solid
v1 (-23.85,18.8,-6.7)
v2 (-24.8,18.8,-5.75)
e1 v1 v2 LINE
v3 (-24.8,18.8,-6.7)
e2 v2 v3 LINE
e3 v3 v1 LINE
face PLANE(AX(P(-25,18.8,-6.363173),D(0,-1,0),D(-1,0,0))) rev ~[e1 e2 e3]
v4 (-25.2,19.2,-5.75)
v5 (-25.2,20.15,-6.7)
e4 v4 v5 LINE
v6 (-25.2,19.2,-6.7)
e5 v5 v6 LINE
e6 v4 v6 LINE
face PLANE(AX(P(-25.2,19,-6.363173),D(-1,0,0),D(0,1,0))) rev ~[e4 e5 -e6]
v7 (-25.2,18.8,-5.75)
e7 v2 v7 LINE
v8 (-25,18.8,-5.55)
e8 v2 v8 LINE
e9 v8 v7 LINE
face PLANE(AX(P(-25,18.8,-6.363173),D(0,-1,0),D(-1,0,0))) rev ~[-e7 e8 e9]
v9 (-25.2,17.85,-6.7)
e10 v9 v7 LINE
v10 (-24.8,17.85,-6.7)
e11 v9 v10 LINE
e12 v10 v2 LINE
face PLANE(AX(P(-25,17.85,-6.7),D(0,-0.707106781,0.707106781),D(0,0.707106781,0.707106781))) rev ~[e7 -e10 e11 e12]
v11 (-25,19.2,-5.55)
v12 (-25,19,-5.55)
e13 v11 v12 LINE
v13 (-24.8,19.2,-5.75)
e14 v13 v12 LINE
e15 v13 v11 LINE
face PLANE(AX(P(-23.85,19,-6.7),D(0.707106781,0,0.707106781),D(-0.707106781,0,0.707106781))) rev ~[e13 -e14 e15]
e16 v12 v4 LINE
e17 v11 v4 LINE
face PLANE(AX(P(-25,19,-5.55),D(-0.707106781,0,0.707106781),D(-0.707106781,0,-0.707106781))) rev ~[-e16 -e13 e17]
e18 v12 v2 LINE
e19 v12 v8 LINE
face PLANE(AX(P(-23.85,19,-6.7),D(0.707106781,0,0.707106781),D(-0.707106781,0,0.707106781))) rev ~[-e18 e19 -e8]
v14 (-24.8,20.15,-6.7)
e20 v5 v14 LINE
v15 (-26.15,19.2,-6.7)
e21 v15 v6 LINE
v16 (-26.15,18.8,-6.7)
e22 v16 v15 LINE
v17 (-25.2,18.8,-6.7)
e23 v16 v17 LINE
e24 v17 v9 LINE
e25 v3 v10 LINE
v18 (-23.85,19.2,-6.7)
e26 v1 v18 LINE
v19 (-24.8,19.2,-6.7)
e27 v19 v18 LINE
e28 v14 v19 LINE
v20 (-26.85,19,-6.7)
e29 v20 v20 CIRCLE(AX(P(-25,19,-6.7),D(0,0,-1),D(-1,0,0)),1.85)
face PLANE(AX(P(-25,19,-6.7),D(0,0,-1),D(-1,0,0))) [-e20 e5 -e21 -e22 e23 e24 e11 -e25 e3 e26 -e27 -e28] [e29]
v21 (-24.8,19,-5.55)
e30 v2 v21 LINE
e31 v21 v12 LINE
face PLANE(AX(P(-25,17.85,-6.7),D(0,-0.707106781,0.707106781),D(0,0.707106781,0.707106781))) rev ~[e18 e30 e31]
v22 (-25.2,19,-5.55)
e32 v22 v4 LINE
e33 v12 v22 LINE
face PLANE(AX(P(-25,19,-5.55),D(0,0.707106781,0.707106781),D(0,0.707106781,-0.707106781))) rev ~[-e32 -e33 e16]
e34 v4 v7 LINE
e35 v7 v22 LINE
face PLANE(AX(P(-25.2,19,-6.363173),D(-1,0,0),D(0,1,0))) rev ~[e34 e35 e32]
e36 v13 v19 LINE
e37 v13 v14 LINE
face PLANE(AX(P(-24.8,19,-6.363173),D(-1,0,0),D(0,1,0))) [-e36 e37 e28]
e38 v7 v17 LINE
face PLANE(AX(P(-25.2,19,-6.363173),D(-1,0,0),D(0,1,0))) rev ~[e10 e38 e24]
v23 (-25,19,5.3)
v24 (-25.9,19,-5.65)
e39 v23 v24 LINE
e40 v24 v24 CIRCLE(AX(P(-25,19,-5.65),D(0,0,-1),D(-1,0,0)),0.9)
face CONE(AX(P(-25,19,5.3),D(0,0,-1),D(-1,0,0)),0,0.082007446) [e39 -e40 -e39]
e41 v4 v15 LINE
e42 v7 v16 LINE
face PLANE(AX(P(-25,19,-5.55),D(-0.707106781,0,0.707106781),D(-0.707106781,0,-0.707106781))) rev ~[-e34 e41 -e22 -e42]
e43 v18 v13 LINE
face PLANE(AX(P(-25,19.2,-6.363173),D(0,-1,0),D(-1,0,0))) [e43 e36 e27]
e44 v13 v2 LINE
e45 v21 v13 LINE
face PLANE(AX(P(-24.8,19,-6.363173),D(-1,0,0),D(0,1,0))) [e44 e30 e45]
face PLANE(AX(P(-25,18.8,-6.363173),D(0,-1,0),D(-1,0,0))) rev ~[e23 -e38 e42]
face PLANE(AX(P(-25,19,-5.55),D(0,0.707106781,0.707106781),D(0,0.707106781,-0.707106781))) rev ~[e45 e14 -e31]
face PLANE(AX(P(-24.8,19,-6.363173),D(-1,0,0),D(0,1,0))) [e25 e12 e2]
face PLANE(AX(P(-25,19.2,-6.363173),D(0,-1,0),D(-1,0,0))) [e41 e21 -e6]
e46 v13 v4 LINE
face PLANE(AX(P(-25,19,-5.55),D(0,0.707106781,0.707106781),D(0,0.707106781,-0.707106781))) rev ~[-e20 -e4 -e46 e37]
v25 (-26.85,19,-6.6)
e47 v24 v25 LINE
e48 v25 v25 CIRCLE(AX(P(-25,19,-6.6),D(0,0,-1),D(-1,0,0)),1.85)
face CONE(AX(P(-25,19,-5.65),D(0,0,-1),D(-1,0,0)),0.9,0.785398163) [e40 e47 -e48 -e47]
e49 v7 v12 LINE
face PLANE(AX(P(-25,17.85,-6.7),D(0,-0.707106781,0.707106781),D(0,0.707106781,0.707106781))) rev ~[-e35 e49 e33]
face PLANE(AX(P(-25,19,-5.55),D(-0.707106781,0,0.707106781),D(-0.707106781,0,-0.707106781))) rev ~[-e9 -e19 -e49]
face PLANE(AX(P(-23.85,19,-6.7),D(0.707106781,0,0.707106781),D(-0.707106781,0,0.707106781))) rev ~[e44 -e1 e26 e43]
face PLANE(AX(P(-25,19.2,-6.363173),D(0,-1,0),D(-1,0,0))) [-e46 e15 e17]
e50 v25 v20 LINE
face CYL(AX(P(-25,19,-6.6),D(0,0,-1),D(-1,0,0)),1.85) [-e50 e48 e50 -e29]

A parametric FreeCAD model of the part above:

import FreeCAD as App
import Part
import Sketcher
Q = App.Units.Quantity

doc = App.newDocument("Part")
body = doc.addObject("PartDesign::Body", "Body")

# Sketch on XZ plane
sketch1 = doc.addObject("Sketcher::SketchObject", "Sketch")
body.addObject(sketch1)
sketch1.AttachmentSupport = (doc.XZ_Plane, [""])
sketch1.MapMode = "FlatFace"
sketch1.addGeometry([
    Part.LineSegment(App.Vector(0, 0, 0), App.Vector(0, -12, 0)),  # 0
    Part.LineSegment(App.Vector(0, -12, 0), App.Vector(0.9, -1.05, 0)),  # 1
    Part.LineSegment(App.Vector(0.9, -1.05, 0), App.Vector(1.85, -0.1, 0)),  # 2
    Part.LineSegment(App.Vector(1.85, -0.1, 0), App.Vector(1.85, 0, 0)),  # 3
    Part.LineSegment(App.Vector(1.85, 0, 0), App.Vector(0, 0, 0)),  # 4
], False)
sketch1.addConstraint([
    Sketcher.Constraint("Coincident", 0, 2, 1, 1),
    Sketcher.Constraint("Coincident", 1, 2, 2, 1),
    Sketcher.Constraint("Coincident", 2, 2, 3, 1),
    Sketcher.Constraint("Coincident", 3, 2, 4, 1),
    Sketcher.Constraint("Coincident", 4, 2, 0, 1),
    Sketcher.Constraint("Vertical", 0),
    Sketcher.Constraint("Vertical", 3),
    Sketcher.Constraint("Horizontal", 4),
    Sketcher.Constraint("Coincident", 4, 2, -1, 1),
    Sketcher.Constraint("DistanceY", 0, 2, 0, 1, 12.0),
    Sketcher.Constraint("Angle", 2, Q("45 deg")),
    Sketcher.Constraint("DistanceY", 3, 1, 3, 2, 0.1),
    Sketcher.Constraint("DistanceX", 4, 2, 4, 1, 1.85),
    Sketcher.Constraint("DistanceX", -1, 1, 1, 2, 0.9),
])
revolution = doc.addObject("PartDesign::Revolution", "Revolution")
body.addObject(revolution)
revolution.Profile = sketch1
revolution.ReferenceAxis = (sketch1, ["V_Axis"])
revolution.Angle = 360

# Sketch on XZ plane
sketch2 = doc.addObject("Sketcher::SketchObject", "Sketch001")
body.addObject(sketch2)
sketch2.AttachmentSupport = (doc.XZ_Plane, [""])
sketch2.MapMode = "FlatFace"
sketch2.addGeometry([
    Part.LineSegment(App.Vector(-1.1, 0, 0), App.Vector(0, -1.1, 0)),
    Part.LineSegment(App.Vector(0, -1.1, 0), App.Vector(1.1, 0, 0)),
    Part.LineSegment(App.Vector(1.1, 0, 0), App.Vector(-1.1, 0, 0)),
], False)
sketch2.addConstraint([
    Sketcher.Constraint("Coincident", 0, 2, 1, 1),
    Sketcher.Constraint("Coincident", 1, 2, 2, 1),
    Sketcher.Constraint("Coincident", 2, 2, 0, 1),
    Sketcher.Constraint("Horizontal", 2),
    Sketcher.Constraint("Symmetric", 1, 2, 2, 2, -1, 1),
    Sketcher.Constraint("PointOnObject", 0, 2, -2),
    Sketcher.Constraint("Perpendicular", 0, 1),
    Sketcher.Constraint("DistanceX", 2, 2, 2, 1, 2.3),
])
pocket1 = doc.addObject("PartDesign::Pocket", "Pocket")
body.addObject(pocket1)
pocket1.Profile = sketch2
pocket1.Length = 0.4
pocket1.Midplane = True
doc.recompute()

polarpattern = doc.addObject("PartDesign::PolarPattern", "PolarPattern")
body.addObject(polarpattern)
polarpattern.Originals = [pocket1]
polarpattern.Axis = (doc.Z_Axis, [""])
polarpattern.Angle = 90
polarpattern.Occurrences = 2
body.Tip = polarpattern
body2 = doc.addObject("PartDesign::Body", "Body001")
doc.recompute()

body.Placement = App.Placement(App.Vector(-25, 19, -6.7), App.Rotation(App.Vector(0, 1, 0), 180))
boolean = doc.addObject("PartDesign::Boolean", "Boolean")
body2.addObject(boolean)
boolean.Type = "Fuse"
boolean.addObjects([body])

doc.recompute()
